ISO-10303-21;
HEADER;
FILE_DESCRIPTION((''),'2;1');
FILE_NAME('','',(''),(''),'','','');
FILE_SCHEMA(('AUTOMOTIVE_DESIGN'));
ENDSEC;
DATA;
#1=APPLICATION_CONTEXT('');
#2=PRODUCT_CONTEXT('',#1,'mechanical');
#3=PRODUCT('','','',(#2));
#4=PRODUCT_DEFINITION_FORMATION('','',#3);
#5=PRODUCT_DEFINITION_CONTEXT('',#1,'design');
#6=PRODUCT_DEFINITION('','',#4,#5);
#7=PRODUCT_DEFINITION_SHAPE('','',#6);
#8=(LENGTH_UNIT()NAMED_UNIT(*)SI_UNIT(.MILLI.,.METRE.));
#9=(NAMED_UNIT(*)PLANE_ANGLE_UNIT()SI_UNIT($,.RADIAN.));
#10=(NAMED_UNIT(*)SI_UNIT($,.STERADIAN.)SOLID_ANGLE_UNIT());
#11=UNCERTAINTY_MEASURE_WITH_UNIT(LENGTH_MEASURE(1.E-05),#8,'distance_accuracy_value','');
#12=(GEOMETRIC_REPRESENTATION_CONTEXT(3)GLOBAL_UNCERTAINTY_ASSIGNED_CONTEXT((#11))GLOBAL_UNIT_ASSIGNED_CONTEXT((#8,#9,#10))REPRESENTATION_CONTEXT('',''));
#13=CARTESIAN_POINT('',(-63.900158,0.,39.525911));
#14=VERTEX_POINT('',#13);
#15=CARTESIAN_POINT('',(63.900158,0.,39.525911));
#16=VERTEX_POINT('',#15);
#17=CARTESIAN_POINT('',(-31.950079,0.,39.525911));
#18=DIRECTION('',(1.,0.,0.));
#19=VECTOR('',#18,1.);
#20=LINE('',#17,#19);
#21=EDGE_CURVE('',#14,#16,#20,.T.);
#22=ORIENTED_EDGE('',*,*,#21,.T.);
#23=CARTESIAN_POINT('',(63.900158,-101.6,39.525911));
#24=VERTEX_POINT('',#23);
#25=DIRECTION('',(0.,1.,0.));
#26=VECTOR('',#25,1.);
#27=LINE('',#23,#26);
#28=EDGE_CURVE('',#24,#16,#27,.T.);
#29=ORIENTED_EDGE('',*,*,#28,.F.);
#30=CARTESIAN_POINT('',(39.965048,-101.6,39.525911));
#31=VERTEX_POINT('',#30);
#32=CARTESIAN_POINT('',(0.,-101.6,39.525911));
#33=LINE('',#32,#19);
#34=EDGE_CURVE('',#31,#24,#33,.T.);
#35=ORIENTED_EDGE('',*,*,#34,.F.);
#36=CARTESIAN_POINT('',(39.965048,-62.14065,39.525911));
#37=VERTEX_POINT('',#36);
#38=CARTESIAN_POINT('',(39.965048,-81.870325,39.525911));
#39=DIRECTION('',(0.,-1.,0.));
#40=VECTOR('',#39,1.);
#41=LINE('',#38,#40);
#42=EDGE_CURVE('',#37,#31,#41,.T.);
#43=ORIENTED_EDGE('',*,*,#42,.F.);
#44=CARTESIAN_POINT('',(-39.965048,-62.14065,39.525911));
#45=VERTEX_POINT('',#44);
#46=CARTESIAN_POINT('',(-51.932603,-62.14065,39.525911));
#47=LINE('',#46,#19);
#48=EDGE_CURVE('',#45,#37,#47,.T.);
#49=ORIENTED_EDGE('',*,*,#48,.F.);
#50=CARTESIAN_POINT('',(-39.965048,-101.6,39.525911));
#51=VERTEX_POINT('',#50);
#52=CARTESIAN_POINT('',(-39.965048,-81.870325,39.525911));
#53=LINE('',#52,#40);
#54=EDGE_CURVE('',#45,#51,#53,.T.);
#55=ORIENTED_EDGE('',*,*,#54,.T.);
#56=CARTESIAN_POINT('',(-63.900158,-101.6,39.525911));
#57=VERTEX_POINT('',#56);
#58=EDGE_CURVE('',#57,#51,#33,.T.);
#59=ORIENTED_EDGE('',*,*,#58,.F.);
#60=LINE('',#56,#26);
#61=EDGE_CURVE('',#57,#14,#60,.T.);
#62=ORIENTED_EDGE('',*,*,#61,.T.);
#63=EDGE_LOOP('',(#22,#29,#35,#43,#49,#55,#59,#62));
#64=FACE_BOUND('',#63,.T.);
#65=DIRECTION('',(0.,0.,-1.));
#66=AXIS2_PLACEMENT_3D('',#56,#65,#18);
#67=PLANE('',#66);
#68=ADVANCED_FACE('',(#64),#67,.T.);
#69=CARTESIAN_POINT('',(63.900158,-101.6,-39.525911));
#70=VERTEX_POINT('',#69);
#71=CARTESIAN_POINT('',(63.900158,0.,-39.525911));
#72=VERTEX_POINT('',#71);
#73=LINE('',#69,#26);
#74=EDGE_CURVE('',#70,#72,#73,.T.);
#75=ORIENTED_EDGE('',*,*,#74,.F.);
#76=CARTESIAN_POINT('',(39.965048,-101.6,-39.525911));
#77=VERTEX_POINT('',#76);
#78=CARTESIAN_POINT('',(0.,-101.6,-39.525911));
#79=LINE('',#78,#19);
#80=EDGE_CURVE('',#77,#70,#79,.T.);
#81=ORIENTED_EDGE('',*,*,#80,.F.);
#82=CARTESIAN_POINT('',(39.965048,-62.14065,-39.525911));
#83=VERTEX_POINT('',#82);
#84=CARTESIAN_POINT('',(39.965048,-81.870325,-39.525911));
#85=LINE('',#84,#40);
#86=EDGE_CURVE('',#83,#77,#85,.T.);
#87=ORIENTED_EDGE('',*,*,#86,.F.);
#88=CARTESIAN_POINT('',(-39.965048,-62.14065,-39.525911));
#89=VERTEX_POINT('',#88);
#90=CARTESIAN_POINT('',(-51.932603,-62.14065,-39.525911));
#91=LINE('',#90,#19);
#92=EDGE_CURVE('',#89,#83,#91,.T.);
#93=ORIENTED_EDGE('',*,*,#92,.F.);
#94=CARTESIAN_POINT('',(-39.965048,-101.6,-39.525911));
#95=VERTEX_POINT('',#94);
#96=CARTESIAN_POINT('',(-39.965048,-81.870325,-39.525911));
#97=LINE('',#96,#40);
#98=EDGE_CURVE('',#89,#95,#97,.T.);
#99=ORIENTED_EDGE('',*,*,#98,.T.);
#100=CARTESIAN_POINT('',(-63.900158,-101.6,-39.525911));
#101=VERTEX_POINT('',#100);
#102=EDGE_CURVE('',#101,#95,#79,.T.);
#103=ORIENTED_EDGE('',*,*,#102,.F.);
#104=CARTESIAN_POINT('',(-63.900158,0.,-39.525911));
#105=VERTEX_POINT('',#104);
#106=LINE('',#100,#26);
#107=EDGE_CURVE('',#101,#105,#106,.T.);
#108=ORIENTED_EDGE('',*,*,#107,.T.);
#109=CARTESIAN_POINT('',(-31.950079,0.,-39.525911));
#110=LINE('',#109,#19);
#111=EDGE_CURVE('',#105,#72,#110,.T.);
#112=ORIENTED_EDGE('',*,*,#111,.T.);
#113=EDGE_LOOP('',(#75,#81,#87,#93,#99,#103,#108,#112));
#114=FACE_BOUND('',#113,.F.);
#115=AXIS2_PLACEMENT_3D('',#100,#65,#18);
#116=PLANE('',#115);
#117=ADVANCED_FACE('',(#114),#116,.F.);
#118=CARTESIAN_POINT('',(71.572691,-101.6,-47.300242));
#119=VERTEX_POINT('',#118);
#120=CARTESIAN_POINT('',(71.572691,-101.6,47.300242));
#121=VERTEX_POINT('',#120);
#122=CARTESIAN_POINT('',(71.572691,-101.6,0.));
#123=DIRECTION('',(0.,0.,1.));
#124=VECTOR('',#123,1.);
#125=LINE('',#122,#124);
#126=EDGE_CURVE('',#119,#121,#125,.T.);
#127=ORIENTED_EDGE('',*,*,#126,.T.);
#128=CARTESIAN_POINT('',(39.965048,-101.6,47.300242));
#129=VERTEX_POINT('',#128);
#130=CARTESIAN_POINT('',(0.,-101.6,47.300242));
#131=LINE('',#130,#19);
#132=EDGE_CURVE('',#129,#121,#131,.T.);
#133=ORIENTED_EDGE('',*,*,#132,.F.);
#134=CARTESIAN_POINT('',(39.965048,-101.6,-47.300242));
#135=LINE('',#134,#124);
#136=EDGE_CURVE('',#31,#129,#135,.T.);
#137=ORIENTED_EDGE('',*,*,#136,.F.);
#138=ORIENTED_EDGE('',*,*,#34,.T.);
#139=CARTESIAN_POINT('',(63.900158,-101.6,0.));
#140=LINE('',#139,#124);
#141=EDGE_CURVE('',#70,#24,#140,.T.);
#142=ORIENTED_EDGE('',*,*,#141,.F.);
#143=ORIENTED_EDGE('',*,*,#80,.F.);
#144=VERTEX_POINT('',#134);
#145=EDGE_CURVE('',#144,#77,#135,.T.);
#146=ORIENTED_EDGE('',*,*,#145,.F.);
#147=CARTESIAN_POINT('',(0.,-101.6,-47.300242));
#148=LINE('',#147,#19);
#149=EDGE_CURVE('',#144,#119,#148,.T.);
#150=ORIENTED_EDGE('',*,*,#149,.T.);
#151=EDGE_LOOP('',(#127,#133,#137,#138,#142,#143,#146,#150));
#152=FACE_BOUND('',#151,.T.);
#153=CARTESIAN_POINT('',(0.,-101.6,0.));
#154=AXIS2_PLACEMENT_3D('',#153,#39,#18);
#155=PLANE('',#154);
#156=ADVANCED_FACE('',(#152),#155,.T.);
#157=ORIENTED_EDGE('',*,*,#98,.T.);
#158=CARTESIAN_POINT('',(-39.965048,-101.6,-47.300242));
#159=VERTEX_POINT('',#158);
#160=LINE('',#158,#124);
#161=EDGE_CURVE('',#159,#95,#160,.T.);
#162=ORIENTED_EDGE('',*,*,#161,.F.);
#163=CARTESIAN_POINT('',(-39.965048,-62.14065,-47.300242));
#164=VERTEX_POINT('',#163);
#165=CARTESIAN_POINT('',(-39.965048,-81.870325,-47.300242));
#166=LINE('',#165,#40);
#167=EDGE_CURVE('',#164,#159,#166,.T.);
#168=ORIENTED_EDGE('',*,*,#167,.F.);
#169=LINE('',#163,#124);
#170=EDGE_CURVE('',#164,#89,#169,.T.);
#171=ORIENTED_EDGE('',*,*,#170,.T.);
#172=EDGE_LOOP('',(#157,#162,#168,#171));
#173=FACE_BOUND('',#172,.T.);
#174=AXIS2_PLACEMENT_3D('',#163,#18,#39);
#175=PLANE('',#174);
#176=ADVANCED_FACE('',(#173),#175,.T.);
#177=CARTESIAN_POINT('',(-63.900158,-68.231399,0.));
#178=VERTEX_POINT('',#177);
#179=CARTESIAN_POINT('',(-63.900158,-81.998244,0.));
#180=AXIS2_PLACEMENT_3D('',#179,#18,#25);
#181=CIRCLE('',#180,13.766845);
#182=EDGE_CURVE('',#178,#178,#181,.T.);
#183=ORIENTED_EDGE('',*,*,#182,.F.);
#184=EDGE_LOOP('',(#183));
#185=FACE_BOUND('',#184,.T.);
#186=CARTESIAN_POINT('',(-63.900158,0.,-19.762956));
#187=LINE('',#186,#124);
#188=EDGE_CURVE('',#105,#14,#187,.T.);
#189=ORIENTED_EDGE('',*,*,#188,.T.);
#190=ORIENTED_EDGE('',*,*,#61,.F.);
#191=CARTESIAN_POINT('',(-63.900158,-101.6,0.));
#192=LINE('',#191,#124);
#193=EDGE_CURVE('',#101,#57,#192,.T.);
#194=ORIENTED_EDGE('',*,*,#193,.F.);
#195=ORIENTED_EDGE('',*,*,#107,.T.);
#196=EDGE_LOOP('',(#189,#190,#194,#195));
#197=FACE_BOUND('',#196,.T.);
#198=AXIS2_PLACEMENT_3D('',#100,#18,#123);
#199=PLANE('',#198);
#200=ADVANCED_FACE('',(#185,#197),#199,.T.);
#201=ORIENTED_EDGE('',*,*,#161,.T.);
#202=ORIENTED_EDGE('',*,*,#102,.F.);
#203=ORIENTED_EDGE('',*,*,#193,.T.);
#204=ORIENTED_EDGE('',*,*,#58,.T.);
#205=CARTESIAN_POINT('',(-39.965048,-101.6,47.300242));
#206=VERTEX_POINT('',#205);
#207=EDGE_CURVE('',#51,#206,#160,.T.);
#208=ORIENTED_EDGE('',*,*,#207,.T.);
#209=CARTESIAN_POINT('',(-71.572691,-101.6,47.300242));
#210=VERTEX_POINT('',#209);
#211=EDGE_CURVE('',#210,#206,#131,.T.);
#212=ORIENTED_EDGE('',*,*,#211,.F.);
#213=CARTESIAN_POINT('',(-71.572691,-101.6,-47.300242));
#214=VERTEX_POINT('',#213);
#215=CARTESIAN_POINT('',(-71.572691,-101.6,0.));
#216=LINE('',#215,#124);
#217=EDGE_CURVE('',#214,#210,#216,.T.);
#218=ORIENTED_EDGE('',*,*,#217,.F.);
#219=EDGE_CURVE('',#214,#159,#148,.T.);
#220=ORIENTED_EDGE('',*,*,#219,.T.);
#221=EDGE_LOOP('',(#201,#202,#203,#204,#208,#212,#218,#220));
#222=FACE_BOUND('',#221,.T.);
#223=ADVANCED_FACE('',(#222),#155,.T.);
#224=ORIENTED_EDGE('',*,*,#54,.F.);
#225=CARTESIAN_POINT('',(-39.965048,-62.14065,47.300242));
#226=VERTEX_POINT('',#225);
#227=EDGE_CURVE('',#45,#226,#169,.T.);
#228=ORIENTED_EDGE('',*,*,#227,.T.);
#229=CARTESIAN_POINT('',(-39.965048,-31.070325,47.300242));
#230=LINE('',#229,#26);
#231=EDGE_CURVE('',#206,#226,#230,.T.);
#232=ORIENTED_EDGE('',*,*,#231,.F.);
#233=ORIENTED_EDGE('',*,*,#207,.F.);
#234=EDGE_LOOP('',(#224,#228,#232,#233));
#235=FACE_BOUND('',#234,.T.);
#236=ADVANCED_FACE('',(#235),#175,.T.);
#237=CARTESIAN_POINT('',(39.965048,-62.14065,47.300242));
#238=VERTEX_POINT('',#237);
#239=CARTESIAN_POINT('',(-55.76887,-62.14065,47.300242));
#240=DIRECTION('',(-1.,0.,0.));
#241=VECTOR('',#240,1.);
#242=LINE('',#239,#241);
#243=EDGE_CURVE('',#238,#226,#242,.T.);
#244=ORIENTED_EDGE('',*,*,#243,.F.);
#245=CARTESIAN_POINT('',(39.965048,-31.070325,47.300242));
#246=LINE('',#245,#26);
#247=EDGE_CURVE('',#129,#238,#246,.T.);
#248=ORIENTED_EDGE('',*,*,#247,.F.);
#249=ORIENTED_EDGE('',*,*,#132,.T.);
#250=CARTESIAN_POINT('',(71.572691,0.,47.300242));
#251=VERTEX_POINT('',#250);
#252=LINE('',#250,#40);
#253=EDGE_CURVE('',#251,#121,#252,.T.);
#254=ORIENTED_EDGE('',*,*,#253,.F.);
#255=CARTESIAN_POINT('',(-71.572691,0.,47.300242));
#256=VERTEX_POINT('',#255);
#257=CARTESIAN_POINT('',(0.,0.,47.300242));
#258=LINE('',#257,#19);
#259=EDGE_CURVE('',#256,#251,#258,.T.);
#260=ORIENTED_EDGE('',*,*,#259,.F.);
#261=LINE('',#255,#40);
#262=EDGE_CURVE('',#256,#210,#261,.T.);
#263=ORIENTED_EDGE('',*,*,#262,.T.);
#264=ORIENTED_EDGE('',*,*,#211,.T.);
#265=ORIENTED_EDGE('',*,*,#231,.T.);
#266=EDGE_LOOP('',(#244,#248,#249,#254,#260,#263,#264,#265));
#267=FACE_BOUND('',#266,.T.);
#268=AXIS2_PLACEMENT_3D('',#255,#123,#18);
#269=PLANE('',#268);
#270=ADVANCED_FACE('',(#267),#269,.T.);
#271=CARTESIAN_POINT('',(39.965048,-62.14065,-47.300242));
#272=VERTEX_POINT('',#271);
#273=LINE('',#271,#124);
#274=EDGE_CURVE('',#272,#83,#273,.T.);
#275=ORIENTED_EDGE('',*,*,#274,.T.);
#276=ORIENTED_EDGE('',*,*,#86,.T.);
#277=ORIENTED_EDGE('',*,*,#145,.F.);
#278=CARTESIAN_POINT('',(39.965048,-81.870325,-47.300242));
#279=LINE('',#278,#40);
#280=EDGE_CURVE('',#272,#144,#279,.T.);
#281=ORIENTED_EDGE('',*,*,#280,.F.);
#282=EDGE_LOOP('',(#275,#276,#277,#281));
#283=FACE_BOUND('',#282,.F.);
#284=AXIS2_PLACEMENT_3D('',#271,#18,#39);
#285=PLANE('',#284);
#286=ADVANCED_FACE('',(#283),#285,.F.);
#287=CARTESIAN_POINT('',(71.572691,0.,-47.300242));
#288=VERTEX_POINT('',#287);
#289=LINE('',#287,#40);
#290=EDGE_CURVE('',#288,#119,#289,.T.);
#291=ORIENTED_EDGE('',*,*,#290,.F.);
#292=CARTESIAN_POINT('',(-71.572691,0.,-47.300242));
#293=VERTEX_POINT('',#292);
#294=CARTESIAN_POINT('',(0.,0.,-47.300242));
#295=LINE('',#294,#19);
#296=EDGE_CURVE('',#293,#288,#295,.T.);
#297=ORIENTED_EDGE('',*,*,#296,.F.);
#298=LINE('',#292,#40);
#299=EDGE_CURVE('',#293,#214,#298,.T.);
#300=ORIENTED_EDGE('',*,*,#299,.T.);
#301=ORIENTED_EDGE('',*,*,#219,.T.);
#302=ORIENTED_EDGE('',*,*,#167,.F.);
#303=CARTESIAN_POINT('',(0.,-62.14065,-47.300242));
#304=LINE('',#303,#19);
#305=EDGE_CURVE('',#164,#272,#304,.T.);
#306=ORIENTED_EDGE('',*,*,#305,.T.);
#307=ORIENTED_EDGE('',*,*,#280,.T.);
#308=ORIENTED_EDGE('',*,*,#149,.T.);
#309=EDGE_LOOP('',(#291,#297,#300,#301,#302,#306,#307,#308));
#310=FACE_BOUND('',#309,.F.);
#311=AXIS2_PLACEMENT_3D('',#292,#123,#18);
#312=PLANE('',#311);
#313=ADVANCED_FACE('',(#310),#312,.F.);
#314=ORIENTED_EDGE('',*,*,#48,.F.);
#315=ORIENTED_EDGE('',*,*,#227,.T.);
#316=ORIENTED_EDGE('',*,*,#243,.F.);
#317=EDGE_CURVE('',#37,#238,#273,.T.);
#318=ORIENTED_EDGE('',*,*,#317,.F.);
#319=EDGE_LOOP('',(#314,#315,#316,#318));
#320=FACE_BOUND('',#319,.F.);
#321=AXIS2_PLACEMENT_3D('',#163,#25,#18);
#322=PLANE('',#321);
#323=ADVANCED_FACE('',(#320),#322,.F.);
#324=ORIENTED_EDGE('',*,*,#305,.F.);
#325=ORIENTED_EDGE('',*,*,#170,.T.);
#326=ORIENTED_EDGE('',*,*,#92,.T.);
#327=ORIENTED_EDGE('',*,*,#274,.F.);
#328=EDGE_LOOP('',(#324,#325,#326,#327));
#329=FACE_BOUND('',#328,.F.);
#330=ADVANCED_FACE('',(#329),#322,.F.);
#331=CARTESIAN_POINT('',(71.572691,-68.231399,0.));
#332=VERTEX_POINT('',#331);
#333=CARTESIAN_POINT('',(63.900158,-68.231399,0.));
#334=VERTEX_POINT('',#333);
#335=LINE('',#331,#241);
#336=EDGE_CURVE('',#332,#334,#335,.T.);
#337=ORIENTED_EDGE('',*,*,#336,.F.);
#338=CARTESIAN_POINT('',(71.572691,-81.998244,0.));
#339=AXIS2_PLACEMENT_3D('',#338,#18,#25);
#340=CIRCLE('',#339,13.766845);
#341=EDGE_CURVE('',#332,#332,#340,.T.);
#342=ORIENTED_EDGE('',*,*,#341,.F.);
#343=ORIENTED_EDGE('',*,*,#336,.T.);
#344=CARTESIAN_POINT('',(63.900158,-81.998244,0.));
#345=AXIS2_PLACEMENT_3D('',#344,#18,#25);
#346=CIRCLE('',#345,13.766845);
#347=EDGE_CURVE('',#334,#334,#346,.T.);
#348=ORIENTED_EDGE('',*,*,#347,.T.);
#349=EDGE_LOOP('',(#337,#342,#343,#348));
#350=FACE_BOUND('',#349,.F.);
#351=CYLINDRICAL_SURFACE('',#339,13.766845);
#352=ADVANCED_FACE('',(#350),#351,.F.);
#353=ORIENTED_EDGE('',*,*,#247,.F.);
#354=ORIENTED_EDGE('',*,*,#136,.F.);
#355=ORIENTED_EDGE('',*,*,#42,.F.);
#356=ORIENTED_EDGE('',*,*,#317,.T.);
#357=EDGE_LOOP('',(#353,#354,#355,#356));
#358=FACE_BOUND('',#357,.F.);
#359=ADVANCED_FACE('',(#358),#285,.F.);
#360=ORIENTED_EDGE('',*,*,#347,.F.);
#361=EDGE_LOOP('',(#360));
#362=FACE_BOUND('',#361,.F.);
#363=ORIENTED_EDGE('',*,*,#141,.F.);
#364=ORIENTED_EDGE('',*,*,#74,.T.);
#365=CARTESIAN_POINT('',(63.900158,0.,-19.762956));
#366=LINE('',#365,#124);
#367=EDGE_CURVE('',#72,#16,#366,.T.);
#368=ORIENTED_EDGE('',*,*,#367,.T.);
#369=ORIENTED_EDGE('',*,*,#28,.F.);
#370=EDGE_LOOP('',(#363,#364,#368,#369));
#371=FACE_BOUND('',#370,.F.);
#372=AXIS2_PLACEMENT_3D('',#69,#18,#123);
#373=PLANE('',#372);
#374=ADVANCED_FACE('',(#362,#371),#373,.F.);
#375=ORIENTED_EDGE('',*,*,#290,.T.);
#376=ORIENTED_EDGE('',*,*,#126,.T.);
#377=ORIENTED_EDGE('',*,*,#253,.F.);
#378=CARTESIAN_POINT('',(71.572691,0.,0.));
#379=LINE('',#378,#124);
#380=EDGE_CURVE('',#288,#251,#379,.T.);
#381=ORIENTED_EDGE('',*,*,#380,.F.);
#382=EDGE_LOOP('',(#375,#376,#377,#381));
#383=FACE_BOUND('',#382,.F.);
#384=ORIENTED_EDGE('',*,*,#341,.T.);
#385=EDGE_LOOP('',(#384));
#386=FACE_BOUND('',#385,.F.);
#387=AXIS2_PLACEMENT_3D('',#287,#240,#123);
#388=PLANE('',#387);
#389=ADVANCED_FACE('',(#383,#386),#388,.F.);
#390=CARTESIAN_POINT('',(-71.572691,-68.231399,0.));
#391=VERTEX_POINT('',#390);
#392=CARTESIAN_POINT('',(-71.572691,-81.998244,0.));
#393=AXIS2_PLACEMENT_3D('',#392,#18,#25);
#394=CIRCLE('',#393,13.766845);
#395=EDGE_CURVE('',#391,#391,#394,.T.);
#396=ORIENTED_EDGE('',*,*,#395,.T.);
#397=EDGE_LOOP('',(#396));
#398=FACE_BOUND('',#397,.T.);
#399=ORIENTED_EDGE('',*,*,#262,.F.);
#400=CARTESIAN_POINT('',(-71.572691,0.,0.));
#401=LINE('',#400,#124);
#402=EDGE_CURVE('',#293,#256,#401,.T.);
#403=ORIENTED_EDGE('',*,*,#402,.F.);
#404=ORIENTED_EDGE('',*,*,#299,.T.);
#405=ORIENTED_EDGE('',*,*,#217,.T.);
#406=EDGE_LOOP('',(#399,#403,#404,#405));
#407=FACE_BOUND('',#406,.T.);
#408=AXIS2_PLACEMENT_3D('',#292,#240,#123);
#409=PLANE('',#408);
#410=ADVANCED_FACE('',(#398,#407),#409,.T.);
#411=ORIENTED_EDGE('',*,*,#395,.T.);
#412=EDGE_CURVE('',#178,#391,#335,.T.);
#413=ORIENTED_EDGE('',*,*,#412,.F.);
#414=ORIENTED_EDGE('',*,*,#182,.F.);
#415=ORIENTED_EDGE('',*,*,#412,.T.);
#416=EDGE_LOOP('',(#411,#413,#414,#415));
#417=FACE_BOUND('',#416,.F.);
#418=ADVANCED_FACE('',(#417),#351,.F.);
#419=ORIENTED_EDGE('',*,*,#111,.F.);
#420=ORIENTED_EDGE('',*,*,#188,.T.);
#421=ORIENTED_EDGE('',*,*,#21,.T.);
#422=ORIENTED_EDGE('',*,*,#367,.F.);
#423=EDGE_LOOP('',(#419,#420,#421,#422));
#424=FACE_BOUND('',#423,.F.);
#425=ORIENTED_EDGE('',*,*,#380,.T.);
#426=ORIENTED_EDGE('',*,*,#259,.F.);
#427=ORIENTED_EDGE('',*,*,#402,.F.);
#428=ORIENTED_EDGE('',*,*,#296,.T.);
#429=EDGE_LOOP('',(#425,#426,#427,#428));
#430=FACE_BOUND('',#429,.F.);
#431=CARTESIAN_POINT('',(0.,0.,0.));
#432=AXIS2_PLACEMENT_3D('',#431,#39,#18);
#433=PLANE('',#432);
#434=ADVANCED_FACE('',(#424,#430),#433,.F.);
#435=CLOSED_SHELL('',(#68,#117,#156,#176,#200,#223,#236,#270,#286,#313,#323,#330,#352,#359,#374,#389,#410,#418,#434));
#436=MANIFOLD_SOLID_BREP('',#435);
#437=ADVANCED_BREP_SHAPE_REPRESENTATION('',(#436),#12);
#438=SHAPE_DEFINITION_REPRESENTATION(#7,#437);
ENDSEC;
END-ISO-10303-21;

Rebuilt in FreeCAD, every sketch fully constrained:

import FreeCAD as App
import Part
import Sketcher
Q = App.Units.Quantity


def add_polygon(sketch, points):
    """Adds a closed chain of lines whose ends are joined by coincident constraints."""
    first, n = sketch.GeometryCount, len(points)
    for a, b in zip(points, points[1:] + points[:1]):
        sketch.addGeometry(Part.LineSegment(App.Vector(*a, 0), App.Vector(*b, 0)), False)
    for i in range(n):
        sketch.addConstraint(Sketcher.Constraint("Coincident", first + i, 2, first + (i + 1) % n, 1))

doc = App.newDocument("Part")
body = doc.addObject("PartDesign::Body", "Body")

sketch1 = body.newObject("Sketcher::SketchObject", "Sketch")
sketch1.AttachmentSupport = (doc.getObject("XZ_Plane"), [""])
sketch1.MapMode = "FlatFace"
add_polygon(sketch1, [(-72, 47), (-72, -47), (72, -47), (72, 47)])
sketch1.addConstraint([
    Sketcher.Constraint("Vertical", 0),
    Sketcher.Constraint("Horizontal", 1),
    Sketcher.Constraint("Vertical", 2),
    Sketcher.Constraint("Horizontal", 3),
    Sketcher.Constraint("Symmetric", 0, 2, 2, 2, -1, 1),
    Sketcher.Constraint("DistanceX", 1, 1, 1, 2, 143.145382),
    Sketcher.Constraint("DistanceY", 0, 2, 0, 1, 94.600484),
])
pad1 = body.newObject("PartDesign::Pad", "Pad")
pad1.Profile = sketch1
pad1.Length = Q("4 in")

sketch2 = body.newObject("Sketcher::SketchObject", "Sketch001")
sketch2.AttachmentSupport = (doc.getObject("XZ_Plane"), [""])
sketch2.MapMode = "FlatFace"
sketch2.AttachmentOffset = App.Placement(App.Vector(0, 0, 4 * 25.4), App.Rotation())
add_polygon(sketch2, [(-64, 40), (-64, -40), (64, -40), (64, 40)])
sketch2.addConstraint([
    Sketcher.Constraint("Vertical", 0),
    Sketcher.Constraint("Horizontal", 1),
    Sketcher.Constraint("Vertical", 2),
    Sketcher.Constraint("Horizontal", 3),
    Sketcher.Constraint("Symmetric", 0, 2, 2, 2, -1, 1),
    Sketcher.Constraint("DistanceY", 0, 2, 0, 1, 79.051822),
    Sketcher.Constraint("DistanceX", 1, 1, 1, 2, 127.800316),
])
pocket1 = body.newObject("PartDesign::Pocket", "Pocket")
pocket1.Profile = sketch2
pocket1.Length = Q("5 in")

sketch3 = body.newObject("Sketcher::SketchObject", "Sketch002")
sketch3.AttachmentSupport = (doc.getObject("XY_Plane"), [""])
sketch3.MapMode = "FlatFace"
sketch3.AttachmentOffset = App.Placement(App.Vector(0, 0, -47.300242), App.Rotation())
add_polygon(sketch3, [(-40, -102), (-40, -62), (40, -62), (40, -102)])
sketch3.addConstraint([
    Sketcher.Constraint("Vertical", 0),
    Sketcher.Constraint("Horizontal", 1),
    Sketcher.Constraint("Vertical", 2),
    Sketcher.Constraint("Horizontal", 3),
    Sketcher.Constraint("DistanceY", 2, 2, -1, 1, Q("4 in")),
    Sketcher.Constraint("DistanceY", 0, 1, 0, 2, 39.45935),
    Sketcher.Constraint("DistanceX", 1, 1, 1, 2, 79.930096),
    Sketcher.Constraint("DistanceX", 0, 2, -1, 1, 39.965048),
])
pocket2 = body.newObject("PartDesign::Pocket", "Pocket001")
pocket2.Profile = sketch3
pocket2.Length = Q("5 in")
pocket2.Reversed = True

sketch4 = body.newObject("Sketcher::SketchObject", "Sketch003")
sketch4.AttachmentSupport = (doc.getObject("YZ_Plane"), [""])
sketch4.MapMode = "FlatFace"
sketch4.AttachmentOffset = App.Placement(App.Vector(0, 0, 71.572691), App.Rotation())
sketch4.addGeometry(Part.Circle(App.Vector(-82, 0, 0), App.Vector(0, 0, 1), 14), False)
sketch4.addConstraint([
    Sketcher.Constraint("PointOnObject", 0, 3, -1),
    Sketcher.Constraint("Diameter", 0, 27.53369),
    Sketcher.Constraint("DistanceX", 0, 3, -1, 1, 81.998244),
])
pocket3 = body.newObject("PartDesign::Pocket", "Pocket002")
pocket3.Profile = sketch4
pocket3.Length = Q("6 in")

doc.recompute()
